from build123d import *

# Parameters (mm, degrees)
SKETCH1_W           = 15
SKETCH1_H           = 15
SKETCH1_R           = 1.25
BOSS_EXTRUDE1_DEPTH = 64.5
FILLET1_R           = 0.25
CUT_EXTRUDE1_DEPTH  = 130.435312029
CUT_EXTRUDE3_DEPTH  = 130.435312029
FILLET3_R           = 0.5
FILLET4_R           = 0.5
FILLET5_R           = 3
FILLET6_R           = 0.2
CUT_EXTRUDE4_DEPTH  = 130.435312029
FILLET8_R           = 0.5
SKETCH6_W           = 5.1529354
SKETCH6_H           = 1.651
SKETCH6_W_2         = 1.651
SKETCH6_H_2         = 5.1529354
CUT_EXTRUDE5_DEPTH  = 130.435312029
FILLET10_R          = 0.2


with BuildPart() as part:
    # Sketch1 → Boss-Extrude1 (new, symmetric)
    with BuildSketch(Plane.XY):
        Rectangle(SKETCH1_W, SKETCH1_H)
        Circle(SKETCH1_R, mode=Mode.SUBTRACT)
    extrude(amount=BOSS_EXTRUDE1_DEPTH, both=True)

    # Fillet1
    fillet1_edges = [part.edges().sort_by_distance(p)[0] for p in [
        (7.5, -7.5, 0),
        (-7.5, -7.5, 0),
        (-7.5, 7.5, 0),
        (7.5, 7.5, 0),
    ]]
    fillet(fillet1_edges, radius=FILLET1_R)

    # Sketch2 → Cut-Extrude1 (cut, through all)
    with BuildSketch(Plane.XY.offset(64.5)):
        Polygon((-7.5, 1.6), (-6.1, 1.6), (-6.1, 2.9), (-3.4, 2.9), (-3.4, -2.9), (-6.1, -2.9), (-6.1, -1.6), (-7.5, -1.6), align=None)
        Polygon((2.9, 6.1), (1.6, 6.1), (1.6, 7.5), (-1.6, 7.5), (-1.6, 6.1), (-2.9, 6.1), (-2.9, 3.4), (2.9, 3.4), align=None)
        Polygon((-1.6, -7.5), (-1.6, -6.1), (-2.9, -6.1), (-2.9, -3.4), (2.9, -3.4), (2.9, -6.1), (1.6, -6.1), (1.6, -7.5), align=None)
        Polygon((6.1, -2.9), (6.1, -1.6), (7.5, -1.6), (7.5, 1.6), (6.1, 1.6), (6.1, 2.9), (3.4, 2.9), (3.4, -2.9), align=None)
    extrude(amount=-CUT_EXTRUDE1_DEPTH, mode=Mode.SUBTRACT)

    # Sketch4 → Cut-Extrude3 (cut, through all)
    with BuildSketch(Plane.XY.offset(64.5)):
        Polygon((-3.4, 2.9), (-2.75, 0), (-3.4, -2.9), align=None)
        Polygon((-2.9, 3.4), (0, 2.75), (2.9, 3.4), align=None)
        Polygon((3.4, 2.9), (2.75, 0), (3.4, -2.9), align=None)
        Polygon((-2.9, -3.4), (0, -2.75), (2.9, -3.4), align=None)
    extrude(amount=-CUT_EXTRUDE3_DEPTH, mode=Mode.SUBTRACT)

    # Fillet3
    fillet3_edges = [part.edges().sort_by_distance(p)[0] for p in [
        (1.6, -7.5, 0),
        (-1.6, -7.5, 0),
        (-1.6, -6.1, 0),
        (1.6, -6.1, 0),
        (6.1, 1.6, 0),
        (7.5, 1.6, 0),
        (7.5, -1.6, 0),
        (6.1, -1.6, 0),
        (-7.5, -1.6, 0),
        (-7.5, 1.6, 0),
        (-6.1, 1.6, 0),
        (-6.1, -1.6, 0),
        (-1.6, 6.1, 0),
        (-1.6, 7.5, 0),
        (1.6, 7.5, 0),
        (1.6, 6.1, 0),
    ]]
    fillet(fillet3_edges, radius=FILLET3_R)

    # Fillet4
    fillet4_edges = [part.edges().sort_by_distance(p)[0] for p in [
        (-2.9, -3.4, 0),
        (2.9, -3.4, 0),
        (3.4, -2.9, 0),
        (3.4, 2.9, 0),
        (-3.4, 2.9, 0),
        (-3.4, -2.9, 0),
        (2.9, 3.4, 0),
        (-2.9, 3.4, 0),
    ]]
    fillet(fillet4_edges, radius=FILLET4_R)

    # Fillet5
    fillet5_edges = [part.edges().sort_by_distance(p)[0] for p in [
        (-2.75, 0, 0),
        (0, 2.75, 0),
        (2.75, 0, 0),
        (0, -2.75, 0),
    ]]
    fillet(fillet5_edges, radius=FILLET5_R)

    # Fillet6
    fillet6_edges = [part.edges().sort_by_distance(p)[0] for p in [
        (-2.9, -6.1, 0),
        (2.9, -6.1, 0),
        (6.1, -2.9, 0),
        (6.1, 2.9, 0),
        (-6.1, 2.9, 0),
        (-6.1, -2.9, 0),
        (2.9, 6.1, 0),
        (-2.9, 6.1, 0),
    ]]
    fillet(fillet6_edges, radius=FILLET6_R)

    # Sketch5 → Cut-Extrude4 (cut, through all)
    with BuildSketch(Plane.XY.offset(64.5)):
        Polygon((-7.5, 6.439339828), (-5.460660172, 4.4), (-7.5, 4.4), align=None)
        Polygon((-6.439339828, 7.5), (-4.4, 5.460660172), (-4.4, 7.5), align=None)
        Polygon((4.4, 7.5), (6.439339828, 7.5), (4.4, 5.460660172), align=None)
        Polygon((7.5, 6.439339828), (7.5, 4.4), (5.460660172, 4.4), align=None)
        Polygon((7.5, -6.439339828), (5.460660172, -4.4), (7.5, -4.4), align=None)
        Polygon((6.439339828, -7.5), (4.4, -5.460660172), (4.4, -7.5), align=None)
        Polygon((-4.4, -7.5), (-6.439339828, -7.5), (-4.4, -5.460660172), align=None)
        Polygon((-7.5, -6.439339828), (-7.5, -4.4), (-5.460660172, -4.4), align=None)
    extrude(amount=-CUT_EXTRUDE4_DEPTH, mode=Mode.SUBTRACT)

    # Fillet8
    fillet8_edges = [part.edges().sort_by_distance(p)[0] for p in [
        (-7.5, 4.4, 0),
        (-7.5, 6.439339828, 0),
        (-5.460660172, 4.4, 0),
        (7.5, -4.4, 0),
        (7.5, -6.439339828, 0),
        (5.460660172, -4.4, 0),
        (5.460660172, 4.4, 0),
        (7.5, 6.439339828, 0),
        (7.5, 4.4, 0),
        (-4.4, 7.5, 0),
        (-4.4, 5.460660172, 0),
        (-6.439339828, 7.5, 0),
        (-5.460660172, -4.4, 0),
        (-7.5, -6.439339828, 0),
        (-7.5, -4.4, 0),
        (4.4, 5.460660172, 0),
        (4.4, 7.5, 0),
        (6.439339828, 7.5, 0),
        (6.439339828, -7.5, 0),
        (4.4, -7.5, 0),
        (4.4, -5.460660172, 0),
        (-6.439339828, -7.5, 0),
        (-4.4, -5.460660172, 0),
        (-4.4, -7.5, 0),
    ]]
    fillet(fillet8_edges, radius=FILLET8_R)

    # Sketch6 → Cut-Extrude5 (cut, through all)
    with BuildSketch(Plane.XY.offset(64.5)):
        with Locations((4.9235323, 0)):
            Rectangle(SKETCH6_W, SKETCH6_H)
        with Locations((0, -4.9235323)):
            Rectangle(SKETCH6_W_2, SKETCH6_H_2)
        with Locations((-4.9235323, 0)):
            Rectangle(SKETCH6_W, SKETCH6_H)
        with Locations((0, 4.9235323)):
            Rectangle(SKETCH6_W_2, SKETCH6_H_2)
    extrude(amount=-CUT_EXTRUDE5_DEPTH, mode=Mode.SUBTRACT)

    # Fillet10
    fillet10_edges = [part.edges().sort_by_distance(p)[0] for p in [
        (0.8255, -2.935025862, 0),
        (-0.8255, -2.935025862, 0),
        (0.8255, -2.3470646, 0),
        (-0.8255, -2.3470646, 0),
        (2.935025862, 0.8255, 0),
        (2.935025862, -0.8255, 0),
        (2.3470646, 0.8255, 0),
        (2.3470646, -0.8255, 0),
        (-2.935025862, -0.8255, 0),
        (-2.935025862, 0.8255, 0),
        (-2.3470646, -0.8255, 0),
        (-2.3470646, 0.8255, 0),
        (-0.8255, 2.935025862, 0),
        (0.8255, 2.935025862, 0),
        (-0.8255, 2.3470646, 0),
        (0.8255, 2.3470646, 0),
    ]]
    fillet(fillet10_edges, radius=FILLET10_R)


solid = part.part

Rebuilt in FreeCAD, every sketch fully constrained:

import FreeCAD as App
import Part
import Sketcher
from FreeCAD import Vector


def edges_at(feature, points):
    """Names of the edges that pass closest to the given points."""
    edges = feature.Shape.Edges
    near = lambda p: min(range(len(edges)), key=lambda i: edges[i].distToShape(Part.Vertex(*p))[0])
    return sorted({f"Edge{near(p) + 1}" for p in points})

doc = App.newDocument("Part")
params = doc.addObject("Spreadsheet::Sheet", "Params")
for row, (alias, value) in enumerate([
    ("sketch1_diameter", "2.5 mm"),
    ("sketch1_width", "15 mm"),
    ("pad1_length", "129 mm"),
    ("fillet_radius", "0.25 mm"),
    ("sketch2_width", "1.4 mm"),
    ("sketch2_width2", "2.7 mm"),
    ("sketch2_width3", "1.3 mm"),
    ("sketch2_width4", "3.2 mm"),
    ("sketch3_width", "5.8 mm"),
    ("fillet2_radius", "0.5 mm"),
    ("fillet3_radius", "0.5 mm"),
    ("fillet4_radius", "3 mm"),
    ("fillet5_radius", "0.2 mm"),
    ("fillet6_radius", "0.5 mm"),
    ("fillet7_radius", "0.2 mm"),
], start=1):
    params.set(f"A{row}", alias)
    params.set(f"B{row}", "=" + value)
    params.setAlias(f"B{row}", alias)

body = doc.addObject("PartDesign::Body", "Body")

# Sketch on XY plane
sketch1 = body.newObject("Sketcher::SketchObject", "Sketch")
sketch1.AttachmentSupport = (doc.getObject("XY_Plane"), [""])
sketch1.MapMode = "FlatFace"
sketch1.addGeometry(Part.LineSegment(Vector(-7.5, 7.5, 0), Vector(-7.5, -7.5, 0)), False)
sketch1.addGeometry(Part.LineSegment(Vector(-7.5, -7.5, 0), Vector(7.5, -7.5, 0)), False)
sketch1.addGeometry(Part.LineSegment(Vector(7.5, -7.5, 0), Vector(7.5, 7.5, 0)), False)
sketch1.addGeometry(Part.LineSegment(Vector(7.5, 7.5, 0), Vector(-7.5, 7.5, 0)), False)
sketch1.addGeometry(Part.Circle(Vector(0, 0, 0), Vector(0, 0, 1), 1.2), False)
sketch1.addConstraint(Sketcher.Constraint("Coincident", 0, 2, 1, 1))
sketch1.addConstraint(Sketcher.Constraint("Coincident", 1, 2, 2, 1))
sketch1.addConstraint(Sketcher.Constraint("Coincident", 2, 2, 3, 1))
sketch1.addConstraint(Sketcher.Constraint("Coincident", 3, 2, 0, 1))
sketch1.addConstraint(Sketcher.Constraint("Vertical", 0))
sketch1.addConstraint(Sketcher.Constraint("Horizontal", 1))
sketch1.addConstraint(Sketcher.Constraint("Vertical", 2))
sketch1.addConstraint(Sketcher.Constraint("Horizontal", 3))
sketch1.addConstraint(Sketcher.Constraint("Coincident", 4, 3, -1, 1))
sketch1.addConstraint(Sketcher.Constraint("Symmetric", 0, 2, 2, 2, -1, 1))
sketch1.addConstraint(Sketcher.Constraint("Equal", 3, 0))
sketch1.addConstraint(Sketcher.Constraint("Diameter", 4, 2.5))
sketch1.addConstraint(Sketcher.Constraint("DistanceX", 1, 1, 1, 2, 15.0))
sketch1.setExpression("Constraints[11]", "Params.sketch1_diameter")
sketch1.setExpression("Constraints[12]", "Params.sketch1_width")
pad1 = body.newObject("PartDesign::Pad", "Pad")
pad1.Profile = sketch1
pad1.setExpression("Length", "Params.pad1_length")
pad1.Midplane = True
doc.recompute()

fillet = body.newObject("PartDesign::Fillet", "Fillet")
fillet.Base = (pad1, edges_at(pad1, [
    (7.5, -7.5, 0),
    (-7.5, -7.5, 0),
    (-7.5, 7.5, 0),
    (7.5, 7.5, 0),
]))
fillet.setExpression("Radius", "Params.fillet_radius")

# Sketch on XY plane
sketch2 = body.newObject("Sketcher::SketchObject", "Sketch001")
sketch2.AttachmentSupport = (doc.getObject("XY_Plane"), [""])
sketch2.MapMode = "FlatFace"
sketch2.AttachmentOffset = App.Placement(Vector(0, 0, 64.5), App.Rotation())
sketch2.addGeometry(Part.LineSegment(Vector(-6.1, 1.6, 0), Vector(-7.5, 1.6, 0)), False)
sketch2.addGeometry(Part.LineSegment(Vector(-7.5, 1.6, 0), Vector(-7.5, -1.6, 0)), False)
sketch2.addGeometry(Part.LineSegment(Vector(-7.5, -1.6, 0), Vector(-6.1, -1.6, 0)), False)
sketch2.addGeometry(Part.LineSegment(Vector(-6.1, -1.6, 0), Vector(-6.1, -2.9, 0)), False)
sketch2.addGeometry(Part.LineSegment(Vector(-6.1, -2.9, 0), Vector(-3.4, -2.9, 0)), False)
sketch2.addGeometry(Part.LineSegment(Vector(-3.4, -2.9, 0), Vector(-3.4, 2.9, 0)), False)
sketch2.addGeometry(Part.LineSegment(Vector(-3.4, 2.9, 0), Vector(-6.1, 2.9, 0)), False)
sketch2.addGeometry(Part.LineSegment(Vector(-6.1, 2.9, 0), Vector(-6.1, 1.6, 0)), False)
sketch2.addGeometry(Part.LineSegment(Vector(2.9, 6.1, 0), Vector(1.6, 6.1, 0)), False)
sketch2.addGeometry(Part.LineSegment(Vector(1.6, 6.1, 0), Vector(1.6, 7.5, 0)), False)
sketch2.addGeometry(Part.LineSegment(Vector(1.6, 7.5, 0), Vector(-1.6, 7.5, 0)), False)
sketch2.addGeometry(Part.LineSegment(Vector(-1.6, 7.5, 0), Vector(-1.6, 6.1, 0)), False)
sketch2.addGeometry(Part.LineSegment(Vector(-1.6, 6.1, 0), Vector(-2.9, 6.1, 0)), False)
sketch2.addGeometry(Part.LineSegment(Vector(-2.9, 6.1, 0), Vector(-2.9, 3.4, 0)), False)
sketch2.addGeometry(Part.LineSegment(Vector(-2.9, 3.4, 0), Vector(2.9, 3.4, 0)), False)
sketch2.addGeometry(Part.LineSegment(Vector(2.9, 3.4, 0), Vector(2.9, 6.1, 0)), False)
sketch2.addGeometry(Part.LineSegment(Vector(-1.6, -6.1, 0), Vector(-1.6, -7.5, 0)), False)
sketch2.addGeometry(Part.LineSegment(Vector(-1.6, -7.5, 0), Vector(1.6, -7.5, 0)), False)
sketch2.addGeometry(Part.LineSegment(Vector(1.6, -7.5, 0), Vector(1.6, -6.1, 0)), False)
sketch2.addGeometry(Part.LineSegment(Vector(1.6, -6.1, 0), Vector(2.9, -6.1, 0)), False)
sketch2.addGeometry(Part.LineSegment(Vector(2.9, -6.1, 0), Vector(2.9, -3.4, 0)), False)
sketch2.addGeometry(Part.LineSegment(Vector(2.9, -3.4, 0), Vector(-2.9, -3.4, 0)), False)
sketch2.addGeometry(Part.LineSegment(Vector(-2.9, -3.4, 0), Vector(-2.9, -6.1, 0)), False)
sketch2.addGeometry(Part.LineSegment(Vector(-2.9, -6.1, 0), Vector(-1.6, -6.1, 0)), False)
sketch2.addGeometry(Part.LineSegment(Vector(6.1, -2.9, 0), Vector(6.1, -1.6, 0)), False)
sketch2.addGeometry(Part.LineSegment(Vector(6.1, -1.6, 0), Vector(7.5, -1.6, 0)), False)
sketch2.addGeometry(Part.LineSegment(Vector(7.5, -1.6, 0), Vector(7.5, 1.6, 0)), False)
sketch2.addGeometry(Part.LineSegment(Vector(7.5, 1.6, 0), Vector(6.1, 1.6, 0)), False)
sketch2.addGeometry(Part.LineSegment(Vector(6.1, 1.6, 0), Vector(6.1, 2.9, 0)), False)
sketch2.addGeometry(Part.LineSegment(Vector(6.1, 2.9, 0), Vector(3.4, 2.9, 0)), False)
sketch2.addGeometry(Part.LineSegment(Vector(3.4, 2.9, 0), Vector(3.4, -2.9, 0)), False)
sketch2.addGeometry(Part.LineSegment(Vector(3.4, -2.9, 0), Vector(6.1, -2.9, 0)), False)
sketch2.addConstraint(Sketcher.Constraint("Coincident", 0, 2, 1, 1))
sketch2.addConstraint(Sketcher.Constraint("Coincident", 1, 2, 2, 1))
sketch2.addConstraint(Sketcher.Constraint("Coincident", 2, 2, 3, 1))
sketch2.addConstraint(Sketcher.Constraint("Coincident", 3, 2, 4, 1))
sketch2.addConstraint(Sketcher.Constraint("Coincident", 4, 2, 5, 1))
sketch2.addConstraint(Sketcher.Constraint("Coincident", 5, 2, 6, 1))
sketch2.addConstraint(Sketcher.Constraint("Coincident", 6, 2, 7, 1))
sketch2.addConstraint(Sketcher.Constraint("Coincident", 7, 2, 0, 1))
sketch2.addConstraint(Sketcher.Constraint("Coincident", 8, 2, 9, 1))
sketch2.addConstraint(Sketcher.Constraint("Coincident", 9, 2, 10, 1))
sketch2.addConstraint(Sketcher.Constraint("Coincident", 10, 2, 11, 1))
sketch2.addConstraint(Sketcher.Constraint("Coincident", 11, 2, 12, 1))
sketch2.addConstraint(Sketcher.Constraint("Coincident", 12, 2, 13, 1))
sketch2.addConstraint(Sketcher.Constraint("Coincident", 13, 2, 14, 1))
sketch2.addConstraint(Sketcher.Constraint("Coincident", 14, 2, 15, 1))
sketch2.addConstraint(Sketcher.Constraint("Coincident", 15, 2, 8, 1))
sketch2.addConstraint(Sketcher.Constraint("Coincident", 16, 2, 17, 1))
sketch2.addConstraint(Sketcher.Constraint("Coincident", 17, 2, 18, 1))
sketch2.addConstraint(Sketcher.Constraint("Coincident", 18, 2, 19, 1))
sketch2.addConstraint(Sketcher.Constraint("Coincident", 19, 2, 20, 1))
sketch2.addConstraint(Sketcher.Constraint("Coincident", 20, 2, 21, 1))
sketch2.addConstraint(Sketcher.Constraint("Coincident", 21, 2, 22, 1))
sketch2.addConstraint(Sketcher.Constraint("Coincident", 22, 2, 23, 1))
sketch2.addConstraint(Sketcher.Constraint("Coincident", 23, 2, 16, 1))
sketch2.addConstraint(Sketcher.Constraint("Coincident", 24, 2, 25, 1))
sketch2.addConstraint(Sketcher.Constraint("Coincident", 25, 2, 26, 1))
sketch2.addConstraint(Sketcher.Constraint("Coincident", 26, 2, 27, 1))
sketch2.addConstraint(Sketcher.Constraint("Coincident", 27, 2, 28, 1))
sketch2.addConstraint(Sketcher.Constraint("Coincident", 28, 2, 29, 1))
sketch2.addConstraint(Sketcher.Constraint("Coincident", 29, 2, 30, 1))
sketch2.addConstraint(Sketcher.Constraint("Coincident", 30, 2, 31, 1))
sketch2.addConstraint(Sketcher.Constraint("Coincident", 31, 2, 24, 1))
sketch2.addConstraint(Sketcher.Constraint("Horizontal", 0))
sketch2.addConstraint(Sketcher.Constraint("Vertical", 1))
sketch2.addConstraint(Sketcher.Constraint("Horizontal", 2))
sketch2.addConstraint(Sketcher.Constraint("Vertical", 3))
sketch2.addConstraint(Sketcher.Constraint("Horizontal", 4))
sketch2.addConstraint(Sketcher.Constraint("Vertical", 5))
sketch2.addConstraint(Sketcher.Constraint("Horizontal", 6))
sketch2.addConstraint(Sketcher.Constraint("Vertical", 7))
sketch2.addConstraint(Sketcher.Constraint("Horizontal", 8))
sketch2.addConstraint(Sketcher.Constraint("Vertical", 9))
sketch2.addConstraint(Sketcher.Constraint("Horizontal", 10))
sketch2.addConstraint(Sketcher.Constraint("Vertical", 11))
sketch2.addConstraint(Sketcher.Constraint("Horizontal", 12))
sketch2.addConstraint(Sketcher.Constraint("Vertical", 13))
sketch2.addConstraint(Sketcher.Constraint("Horizontal", 14))
sketch2.addConstraint(Sketcher.Constraint("Vertical", 15))
sketch2.addConstraint(Sketcher.Constraint("Vertical", 16))
sketch2.addConstraint(Sketcher.Constraint("Horizontal", 17))
sketch2.addConstraint(Sketcher.Constraint("Vertical", 18))
sketch2.addConstraint(Sketcher.Constraint("Horizontal", 19))
sketch2.addConstraint(Sketcher.Constraint("Vertical", 20))
sketch2.addConstraint(Sketcher.Constraint("Horizontal", 21))
sketch2.addConstraint(Sketcher.Constraint("Vertical", 22))
sketch2.addConstraint(Sketcher.Constraint("Horizontal", 23))
sketch2.addConstraint(Sketcher.Constraint("Vertical", 24))
sketch2.addConstraint(Sketcher.Constraint("Horizontal", 25))
sketch2.addConstraint(Sketcher.Constraint("Vertical", 26))
sketch2.addConstraint(Sketcher.Constraint("Horizontal", 27))
sketch2.addConstraint(Sketcher.Constraint("Vertical", 28))
sketch2.addConstraint(Sketcher.Constraint("Horizontal", 29))
sketch2.addConstraint(Sketcher.Constraint("Vertical", 30))
sketch2.addConstraint(Sketcher.Constraint("Horizontal", 31))
sketch2.addConstraint(Sketcher.Constraint("Symmetric", 9, 2, 16, 2, -1, 1))
sketch2.addConstraint(Sketcher.Constraint("Symmetric", 11, 2, 18, 2, -1, 1))
sketch2.addConstraint(Sketcher.Constraint("Symmetric", 13, 2, 20, 2, -1, 1))
sketch2.addConstraint(Sketcher.Constraint("Symmetric", 15, 2, 22, 2, -1, 1))
sketch2.addConstraint(Sketcher.Constraint("Symmetric", 7, 2, 24, 2, -1, 1))
sketch2.addConstraint(Sketcher.Constraint("Symmetric", 1, 2, 26, 2, -1, 1))
sketch2.addConstraint(Sketcher.Constraint("Symmetric", 3, 2, 28, 2, -1, 1))
sketch2.addConstraint(Sketcher.Constraint("Symmetric", 5, 2, 30, 2, -1, 1))
sketch2.addConstraint(Sketcher.Constraint("Symmetric", 8, 2, 11, 2, -2))
sketch2.addConstraint(Sketcher.Constraint("Symmetric", 2, 2, 24, 2, -2))
sketch2.addConstraint(Sketcher.Constraint("Horizontal", 6, 2, 28, 2))
sketch2.addConstraint(Sketcher.Constraint("Vertical", 15, 2, 19, 2))
sketch2.addConstraint(Sketcher.Constraint("Equal", 17, 1))
sketch2.addConstraint(Sketcher.Constraint("Equal", 23, 3))
sketch2.addConstraint(Sketcher.Constraint("Equal", 27, 9))
sketch2.addConstraint(Sketcher.Constraint("Equal", 31, 13))
sketch2.addConstraint(Sketcher.Constraint("DistanceX", 0, 2, 0, 1, 1.4))
sketch2.addConstraint(Sketcher.Constraint("DistanceX", 4, 1, 4, 2, 2.7))
sketch2.addConstraint(Sketcher.Constraint("DistanceX", 8, 2, 8, 1, 1.3))
sketch2.addConstraint(Sketcher.Constraint("DistanceX", 10, 2, 10, 1, 3.2))
sketch2.addConstraint(Sketcher.Constraint("DistanceX", 5, 2, 8, 2, 5.0))
sketch2.addConstraint(Sketcher.Constraint("DistanceY", 4, 2, 8, 2, 9.0))
sketch2.setExpression("Constraints[80]", "Params.sketch2_width")
sketch2.setExpression("Constraints[81]", "Params.sketch2_width2")
sketch2.setExpression("Constraints[82]", "Params.sketch2_width3")
sketch2.setExpression("Constraints[83]", "Params.sketch2_width4")
pocket1 = body.newObject("PartDesign::Pocket", "Pocket")
pocket1.Profile = sketch2
pocket1.Type = "ThroughAll"

# Sketch on XY plane
sketch3 = body.newObject("Sketcher::SketchObject", "Sketch002")
sketch3.AttachmentSupport = (doc.getObject("XY_Plane"), [""])
sketch3.MapMode = "FlatFace"
sketch3.AttachmentOffset = App.Placement(Vector(0, 0, 64.5), App.Rotation())
sketch3.addGeometry(Part.LineSegment(Vector(-2.8, 0, 0), Vector(-3.4, 2.9, 0)), False)
sketch3.addGeometry(Part.LineSegment(Vector(-3.4, 2.9, 0), Vector(-3.4, -2.9, 0)), False)
sketch3.addGeometry(Part.LineSegment(Vector(-3.4, -2.9, 0), Vector(-2.8, 0, 0)), False)
sketch3.addGeometry(Part.LineSegment(Vector(-2.9, 3.4, 0), Vector(0, 2.8, 0)), False)
sketch3.addGeometry(Part.LineSegment(Vector(0, 2.8, 0), Vector(2.9, 3.4, 0)), False)
sketch3.addGeometry(Part.LineSegment(Vector(2.9, 3.4, 0), Vector(-2.9, 3.4, 0)), False)
sketch3.addGeometry(Part.LineSegment(Vector(3.4, 2.9, 0), Vector(2.8, 0, 0)), False)
sketch3.addGeometry(Part.LineSegment(Vector(2.8, 0, 0), Vector(3.4, -2.9, 0)), False)
sketch3.addGeometry(Part.LineSegment(Vector(3.4, -2.9, 0), Vector(3.4, 2.9, 0)), False)
sketch3.addGeometry(Part.LineSegment(Vector(0, -2.8, 0), Vector(-2.9, -3.4, 0)), False)
sketch3.addGeometry(Part.LineSegment(Vector(-2.9, -3.4, 0), Vector(2.9, -3.4, 0)), False)
sketch3.addGeometry(Part.LineSegment(Vector(2.9, -3.4, 0), Vector(0, -2.8, 0)), False)
sketch3.addConstraint(Sketcher.Constraint("Coincident", 0, 2, 1, 1))
sketch3.addConstraint(Sketcher.Constraint("Coincident", 1, 2, 2, 1))
sketch3.addConstraint(Sketcher.Constraint("Coincident", 2, 2, 0, 1))
sketch3.addConstraint(Sketcher.Constraint("Coincident", 3, 2, 4, 1))
sketch3.addConstraint(Sketcher.Constraint("Coincident", 4, 2, 5, 1))
sketch3.addConstraint(Sketcher.Constraint("Coincident", 5, 2, 3, 1))
sketch3.addConstraint(Sketcher.Constraint("Coincident", 6, 2, 7, 1))
sketch3.addConstraint(Sketcher.Constraint("Coincident", 7, 2, 8, 1))
sketch3.addConstraint(Sketcher.Constraint("Coincident", 8, 2, 6, 1))
sketch3.addConstraint(Sketcher.Constraint("Coincident", 9, 2, 10, 1))
sketch3.addConstraint(Sketcher.Constraint("Coincident", 10, 2, 11, 1))
sketch3.addConstraint(Sketcher.Constraint("Coincident", 11, 2, 9, 1))
sketch3.addConstraint(Sketcher.Constraint("Vertical", 1))
sketch3.addConstraint(Sketcher.Constraint("Horizontal", 5))
sketch3.addConstraint(Sketcher.Constraint("Vertical", 8))
sketch3.addConstraint(Sketcher.Constraint("Horizontal", 10))
sketch3.addConstraint(Sketcher.Constraint("Symmetric", 2, 2, 6, 2, -1, 1))
sketch3.addConstraint(Sketcher.Constraint("Symmetric", 0, 2, 7, 2, -1, 1))
sketch3.addConstraint(Sketcher.Constraint("Symmetric", 4, 2, 9, 2, -1, 1))
sketch3.addConstraint(Sketcher.Constraint("Symmetric", 3, 2, 11, 2, -1, 1))
sketch3.addConstraint(Sketcher.Constraint("PointOnObject", 2, 2, -1))
sketch3.addConstraint(Sketcher.Constraint("PointOnObject", 3, 2, -2))
sketch3.addConstraint(Sketcher.Constraint("Perpendicular", 2, 3))
sketch3.addConstraint(Sketcher.Constraint("Perpendicular", 0, 4))
sketch3.addConstraint(Sketcher.Constraint("Perpendicular", 3, 6))
sketch3.addConstraint(Sketcher.Constraint("Perpendicular", 6, 11))
sketch3.addConstraint(Sketcher.Constraint("Horizontal", 1, 2, 7, 2))
sketch3.addConstraint(Sketcher.Constraint("Equal", 10, 1))
sketch3.addConstraint(Sketcher.Constraint("DistanceX", 5, 2, 5, 1, 5.8))
sketch3.addConstraint(Sketcher.Constraint("DistanceX", 0, 2, -1, 1, 3.4))
sketch3.addConstraint(Sketcher.Constraint("DistanceY", -1, 1, 4, 2, 3.4))
sketch3.addConstraint(Sketcher.Constraint("DistanceX", 2, 2, 6, 2, 5.5))
sketch3.setExpression("Constraints[28]", "Params.sketch3_width")
pocket2 = body.newObject("PartDesign::Pocket", "Pocket001")
pocket2.Profile = sketch3
pocket2.Type = "ThroughAll"
doc.recompute()

fillet2 = body.newObject("PartDesign::Fillet", "Fillet001")
fillet2.Base = (pocket2, edges_at(pocket2, [
    (1.6, -7.5, 0),
    (-1.6, -7.5, 0),
    (-1.6, -6.1, 0),
    (1.6, -6.1, 0),
    (6.1, 1.6, 0),
    (7.5, 1.6, 0),
    (7.5, -1.6, 0),
    (6.1, -1.6, 0),
    (-7.5, -1.6, 0),
    (-7.5, 1.6, 0),
    (-6.1, 1.6, 0),
    (-6.1, -1.6, 0),
    (-1.6, 6.1, 0),
    (-1.6, 7.5, 0),
    (1.6, 7.5, 0),
    (1.6, 6.1, 0),
]))
fillet2.setExpression("Radius", "Params.fillet2_radius")
doc.recompute()

fillet3 = body.newObject("PartDesign::Fillet", "Fillet002")
fillet3.Base = (fillet2, edges_at(fillet2, [
    (-2.9, -3.4, 0),
    (2.9, -3.4, 0),
    (3.4, -2.9, 0),
    (3.4, 2.9, 0),
    (-3.4, 2.9, 0),
    (-3.4, -2.9, 0),
    (2.9, 3.4, 0),
    (-2.9, 3.4, 0),
]))
fillet3.setExpression("Radius", "Params.fillet3_radius")
doc.recompute()

fillet4 = body.newObject("PartDesign::Fillet", "Fillet003")
fillet4.Base = (fillet3, edges_at(fillet3, [
    (-2.75, 0, 0),
    (0, 2.75, 0),
    (2.75, 0, 0),
    (0, -2.75, 0),
]))
fillet4.setExpression("Radius", "Params.fillet4_radius")
doc.recompute()

fillet5 = body.newObject("PartDesign::Fillet", "Fillet004")
fillet5.Base = (fillet4, edges_at(fillet4, [
    (-2.9, -6.1, 0),
    (2.9, -6.1, 0),
    (6.1, -2.9, 0),
    (6.1, 2.9, 0),
    (-6.1, 2.9, 0),
    (-6.1, -2.9, 0),
    (2.9, 6.1, 0),
    (-2.9, 6.1, 0),
]))
fillet5.setExpression("Radius", "Params.fillet5_radius")

# Sketch on XY plane
sketch4 = body.newObject("Sketcher::SketchObject", "Sketch003")
sketch4.AttachmentSupport = (doc.getObject("XY_Plane"), [""])
sketch4.MapMode = "FlatFace"
sketch4.AttachmentOffset = App.Placement(Vector(0, 0, 64.5), App.Rotation())
sketch4.addGeometry(Part.LineSegment(Vector(-5.5, 4.4, 0), Vector(-7.5, 6.4, 0)), False)
sketch4.addGeometry(Part.LineSegment(Vector(-7.5, 6.4, 0), Vector(-7.5, 4.4, 0)), False)
sketch4.addGeometry(Part.LineSegment(Vector(-7.5, 4.4, 0), Vector(-5.5, 4.4, 0)), False)
sketch4.addGeometry(Part.LineSegment(Vector(-6.4, 7.5, 0), Vector(-4.4, 5.5, 0)), False)
sketch4.addGeometry(Part.LineSegment(Vector(-4.4, 5.5, 0), Vector(-4.4, 7.5, 0)), False)
sketch4.addGeometry(Part.LineSegment(Vector(-4.4, 7.5, 0), Vector(-6.4, 7.5, 0)), False)
sketch4.addGeometry(Part.LineSegment(Vector(6.4, 7.5, 0), Vector(4.4, 7.5, 0)), False)
sketch4.addGeometry(Part.LineSegment(Vector(4.4, 7.5, 0), Vector(4.4, 5.5, 0)), False)
sketch4.addGeometry(Part.LineSegment(Vector(4.4, 5.5, 0), Vector(6.4, 7.5, 0)), False)
sketch4.addGeometry(Part.LineSegment(Vector(7.5, 4.4, 0), Vector(7.5, 6.4, 0)), False)
sketch4.addGeometry(Part.LineSegment(Vector(7.5, 6.4, 0), Vector(5.5, 4.4, 0)), False)
sketch4.addGeometry(Part.LineSegment(Vector(5.5, 4.4, 0), Vector(7.5, 4.4, 0)), False)
sketch4.addGeometry(Part.LineSegment(Vector(5.5, -4.4, 0), Vector(7.5, -6.4, 0)), False)
sketch4.addGeometry(Part.LineSegment(Vector(7.5, -6.4, 0), Vector(7.5, -4.4, 0)), False)
sketch4.addGeometry(Part.LineSegment(Vector(7.5, -4.4, 0), Vector(5.5, -4.4, 0)), False)
sketch4.addGeometry(Part.LineSegment(Vector(6.4, -7.5, 0), Vector(4.4, -5.5, 0)), False)
sketch4.addGeometry(Part.LineSegment(Vector(4.4, -5.5, 0), Vector(4.4, -7.5, 0)), False)
sketch4.addGeometry(Part.LineSegment(Vector(4.4, -7.5, 0), Vector(6.4, -7.5, 0)), False)
sketch4.addGeometry(Part.LineSegment(Vector(-6.4, -7.5, 0), Vector(-4.4, -7.5, 0)), False)
sketch4.addGeometry(Part.LineSegment(Vector(-4.4, -7.5, 0), Vector(-4.4, -5.5, 0)), False)
sketch4.addGeometry(Part.LineSegment(Vector(-4.4, -5.5, 0), Vector(-6.4, -7.5, 0)), False)
sketch4.addGeometry(Part.LineSegment(Vector(-7.5, -4.4, 0), Vector(-7.5, -6.4, 0)), False)
sketch4.addGeometry(Part.LineSegment(Vector(-7.5, -6.4, 0), Vector(-5.5, -4.4, 0)), False)
sketch4.addGeometry(Part.LineSegment(Vector(-5.5, -4.4, 0), Vector(-7.5, -4.4, 0)), False)
sketch4.addConstraint(Sketcher.Constraint("Coincident", 0, 2, 1, 1))
sketch4.addConstraint(Sketcher.Constraint("Coincident", 1, 2, 2, 1))
sketch4.addConstraint(Sketcher.Constraint("Coincident", 2, 2, 0, 1))
sketch4.addConstraint(Sketcher.Constraint("Coincident", 3, 2, 4, 1))
sketch4.addConstraint(Sketcher.Constraint("Coincident", 4, 2, 5, 1))
sketch4.addConstraint(Sketcher.Constraint("Coincident", 5, 2, 3, 1))
sketch4.addConstraint(Sketcher.Constraint("Coincident", 6, 2, 7, 1))
sketch4.addConstraint(Sketcher.Constraint("Coincident", 7, 2, 8, 1))
sketch4.addConstraint(Sketcher.Constraint("Coincident", 8, 2, 6, 1))
sketch4.addConstraint(Sketcher.Constraint("Coincident", 9, 2, 10, 1))
sketch4.addConstraint(Sketcher.Constraint("Coincident", 10, 2, 11, 1))
sketch4.addConstraint(Sketcher.Constraint("Coincident", 11, 2, 9, 1))
sketch4.addConstraint(Sketcher.Constraint("Coincident", 12, 2, 13, 1))
sketch4.addConstraint(Sketcher.Constraint("Coincident", 13, 2, 14, 1))
sketch4.addConstraint(Sketcher.Constraint("Coincident", 14, 2, 12, 1))
sketch4.addConstraint(Sketcher.Constraint("Coincident", 15, 2, 16, 1))
sketch4.addConstraint(Sketcher.Constraint("Coincident", 16, 2, 17, 1))
sketch4.addConstraint(Sketcher.Constraint("Coincident", 17, 2, 15, 1))
sketch4.addConstraint(Sketcher.Constraint("Coincident", 18, 2, 19, 1))
sketch4.addConstraint(Sketcher.Constraint("Coincident", 19, 2, 20, 1))
sketch4.addConstraint(Sketcher.Constraint("Coincident", 20, 2, 18, 1))
sketch4.addConstraint(Sketcher.Constraint("Coincident", 21, 2, 22, 1))
sketch4.addConstraint(Sketcher.Constraint("Coincident", 22, 2, 23, 1))
sketch4.addConstraint(Sketcher.Constraint("Coincident", 23, 2, 21, 1))
sketch4.addConstraint(Sketcher.Constraint("Vertical", 1))
sketch4.addConstraint(Sketcher.Constraint("Horizontal", 2))
sketch4.addConstraint(Sketcher.Constraint("Vertical", 4))
sketch4.addConstraint(Sketcher.Constraint("Horizontal", 5))
sketch4.addConstraint(Sketcher.Constraint("Horizontal", 6))
sketch4.addConstraint(Sketcher.Constraint("Vertical", 7))
sketch4.addConstraint(Sketcher.Constraint("Vertical", 9))
sketch4.addConstraint(Sketcher.Constraint("Horizontal", 11))
sketch4.addConstraint(Sketcher.Constraint("Vertical", 13))
sketch4.addConstraint(Sketcher.Constraint("Horizontal", 14))
sketch4.addConstraint(Sketcher.Constraint("Vertical", 16))
sketch4.addConstraint(Sketcher.Constraint("Horizontal", 17))
sketch4.addConstraint(Sketcher.Constraint("Horizontal", 18))
sketch4.addConstraint(Sketcher.Constraint("Vertical", 19))
sketch4.addConstraint(Sketcher.Constraint("Vertical", 21))
sketch4.addConstraint(Sketcher.Constraint("Horizontal", 23))
sketch4.addConstraint(Sketcher.Constraint("Symmetric", 0, 2, 12, 2, -1, 1))
sketch4.addConstraint(Sketcher.Constraint("Symmetric", 2, 2, 14, 2, -1, 1))
sketch4.addConstraint(Sketcher.Constraint("Symmetric", 3, 2, 15, 2, -1, 1))
sketch4.addConstraint(Sketcher.Constraint("Symmetric", 5, 2, 17, 2, -1, 1))
sketch4.addConstraint(Sketcher.Constraint("Symmetric", 6, 2, 18, 2, -1, 1))
sketch4.addConstraint(Sketcher.Constraint("Symmetric", 9, 2, 21, 2, -1, 1))
sketch4.addConstraint(Sketcher.Constraint("Symmetric", 10, 2, 22, 2, -1, 1))
sketch4.addConstraint(Sketcher.Constraint("Symmetric", 4, 2, 6, 2, -2))
sketch4.addConstraint(Sketcher.Constraint("Symmetric", 0, 2, 9, 2, -2))
sketch4.addConstraint(Sketcher.Constraint("Symmetric", 2, 2, 10, 2, -2))
sketch4.addConstraint(Sketcher.Constraint("Parallel", 0, 3))
sketch4.addConstraint(Sketcher.Constraint("Perpendicular", 3, 8))
sketch4.addConstraint(Sketcher.Constraint("Parallel", 8, 10))
sketch4.addConstraint(Sketcher.Constraint("Perpendicular", 15, 20))
sketch4.addConstraint(Sketcher.Constraint("Horizontal", 3, 2, 7, 2))
sketch4.addConstraint(Sketcher.Constraint("Horizontal", 15, 2, 19, 2))
sketch4.addConstraint(Sketcher.Constraint("Equal", 2, 5))
sketch4.addConstraint(Sketcher.Constraint("DistanceX", 0, 2, -1, 1, 7.5))
sketch4.addConstraint(Sketcher.Constraint("DistanceY", -1, 1, 1, 2, 4.4))
sketch4.addConstraint(Sketcher.Constraint("DistanceX", 3, 2, -1, 1, 4.4))
sketch4.addConstraint(Sketcher.Constraint("DistanceY", -1, 1, 4, 2, 7.5))
sketch4.addConstraint(Sketcher.Constraint("DistanceX", 2, 1, 2, 2, 2.03934))
pocket3 = body.newObject("PartDesign::Pocket", "Pocket002")
pocket3.Profile = sketch4
pocket3.Type = "ThroughAll"
doc.recompute()

fillet6 = body.newObject("PartDesign::Fillet", "Fillet005")
fillet6.Base = (pocket3, edges_at(pocket3, [
    (-7.5, 4.4, 0),
    (-7.5, 6.439, 0),
    (-5.461, 4.4, 0),
    (7.5, -4.4, 0),
    (7.5, -6.439, 0),
    (5.461, -4.4, 0),
    (5.461, 4.4, 0),
    (7.5, 6.439, 0),
    (7.5, 4.4, 0),
    (-4.4, 7.5, 0),
    (-4.4, 5.461, 0),
    (-6.439, 7.5, 0),
    (-5.461, -4.4, 0),
    (-7.5, -6.439, 0),
    (-7.5, -4.4, 0),
    (4.4, 5.461, 0),
    (4.4, 7.5, 0),
    (6.439, 7.5, 0),
    (6.439, -7.5, 0),
    (4.4, -7.5, 0),
    (4.4, -5.461, 0),
    (-6.439, -7.5, 0),
    (-4.4, -5.461, 0),
    (-4.4, -7.5, 0),
]))
fillet6.setExpression("Radius", "Params.fillet6_radius")

# Sketch on XY plane
sketch5 = body.newObject("Sketcher::SketchObject", "Sketch004")
sketch5.AttachmentSupport = (doc.getObject("XY_Plane"), [""])
sketch5.MapMode = "FlatFace"
sketch5.AttachmentOffset = App.Placement(Vector(0, 0, 64.5), App.Rotation())
sketch5.addGeometry(Part.LineSegment(Vector(2.3, 0.8, 0), Vector(2.3, -0.8, 0)), False)
sketch5.addGeometry(Part.LineSegment(Vector(2.3, -0.8, 0), Vector(7.5, -0.8, 0)), False)
sketch5.addGeometry(Part.LineSegment(Vector(7.5, -0.8, 0), Vector(7.5, 0.8, 0)), False)
sketch5.addGeometry(Part.LineSegment(Vector(7.5, 0.8, 0), Vector(2.3, 0.8, 0)), False)
sketch5.addGeometry(Part.LineSegment(Vector(-0.8, -2.3, 0), Vector(-0.8, -7.5, 0)), False)
sketch5.addGeometry(Part.LineSegment(Vector(-0.8, -7.5, 0), Vector(0.8, -7.5, 0)), False)
sketch5.addGeometry(Part.LineSegment(Vector(0.8, -7.5, 0), Vector(0.8, -2.3, 0)), False)
sketch5.addGeometry(Part.LineSegment(Vector(0.8, -2.3, 0), Vector(-0.8, -2.3, 0)), False)
sketch5.addGeometry(Part.LineSegment(Vector(-7.5, 0.8, 0), Vector(-7.5, -0.8, 0)), False)
sketch5.addGeometry(Part.LineSegment(Vector(-7.5, -0.8, 0), Vector(-2.3, -0.8, 0)), False)
sketch5.addGeometry(Part.LineSegment(Vector(-2.3, -0.8, 0), Vector(-2.3, 0.8, 0)), False)
sketch5.addGeometry(Part.LineSegment(Vector(-2.3, 0.8, 0), Vector(-7.5, 0.8, 0)), False)
sketch5.addGeometry(Part.LineSegment(Vector(-0.8, 7.5, 0), Vector(-0.8, 2.3, 0)), False)
sketch5.addGeometry(Part.LineSegment(Vector(-0.8, 2.3, 0), Vector(0.8, 2.3, 0)), False)
sketch5.addGeometry(Part.LineSegment(Vector(0.8, 2.3, 0), Vector(0.8, 7.5, 0)), False)
sketch5.addGeometry(Part.LineSegment(Vector(0.8, 7.5, 0), Vector(-0.8, 7.5, 0)), False)
sketch5.addConstraint(Sketcher.Constraint("Coincident", 0, 2, 1, 1))
sketch5.addConstraint(Sketcher.Constraint("Coincident", 1, 2, 2, 1))
sketch5.addConstraint(Sketcher.Constraint("Coincident", 2, 2, 3, 1))
sketch5.addConstraint(Sketcher.Constraint("Coincident", 3, 2, 0, 1))
sketch5.addConstraint(Sketcher.Constraint("Coincident", 4, 2, 5, 1))
sketch5.addConstraint(Sketcher.Constraint("Coincident", 5, 2, 6, 1))
sketch5.addConstraint(Sketcher.Constraint("Coincident", 6, 2, 7, 1))
sketch5.addConstraint(Sketcher.Constraint("Coincident", 7, 2, 4, 1))
sketch5.addConstraint(Sketcher.Constraint("Coincident", 8, 2, 9, 1))
sketch5.addConstraint(Sketcher.Constraint("Coincident", 9, 2, 10, 1))
sketch5.addConstraint(Sketcher.Constraint("Coincident", 10, 2, 11, 1))
sketch5.addConstraint(Sketcher.Constraint("Coincident", 11, 2, 8, 1))
sketch5.addConstraint(Sketcher.Constraint("Coincident", 12, 2, 13, 1))
sketch5.addConstraint(Sketcher.Constraint("Coincident", 13, 2, 14, 1))
sketch5.addConstraint(Sketcher.Constraint("Coincident", 14, 2, 15, 1))
sketch5.addConstraint(Sketcher.Constraint("Coincident", 15, 2, 12, 1))
sketch5.addConstraint(Sketcher.Constraint("Vertical", 0))
sketch5.addConstraint(Sketcher.Constraint("Horizontal", 1))
sketch5.addConstraint(Sketcher.Constraint("Vertical", 2))
sketch5.addConstraint(Sketcher.Constraint("Horizontal", 3))
sketch5.addConstraint(Sketcher.Constraint("Vertical", 4))
sketch5.addConstraint(Sketcher.Constraint("Horizontal", 5))
sketch5.addConstraint(Sketcher.Constraint("Vertical", 6))
sketch5.addConstraint(Sketcher.Constraint("Horizontal", 7))
sketch5.addConstraint(Sketcher.Constraint("Vertical", 8))
sketch5.addConstraint(Sketcher.Constraint("Horizontal", 9))
sketch5.addConstraint(Sketcher.Constraint("Vertical", 10))
sketch5.addConstraint(Sketcher.Constraint("Horizontal", 11))
sketch5.addConstraint(Sketcher.Constraint("Vertical", 12))
sketch5.addConstraint(Sketcher.Constraint("Horizontal", 13))
sketch5.addConstraint(Sketcher.Constraint("Vertical", 14))
sketch5.addConstraint(Sketcher.Constraint("Horizontal", 15))
sketch5.addConstraint(Sketcher.Constraint("Symmetric", 2, 2, 8, 2, -1, 1))
sketch5.addConstraint(Sketcher.Constraint("Symmetric", 0, 2, 10, 2, -1, 1))
sketch5.addConstraint(Sketcher.Constraint("Symmetric", 6, 2, 12, 2, -1, 1))
sketch5.addConstraint(Sketcher.Constraint("Symmetric", 4, 2, 14, 2, -1, 1))
sketch5.addConstraint(Sketcher.Constraint("Horizontal", 1, 2, 8, 2))
sketch5.addConstraint(Sketcher.Constraint("Vertical", 7, 2, 12, 2))
sketch5.addConstraint(Sketcher.Constraint("Equal", 15, 0))
sketch5.addConstraint(Sketcher.Constraint("Equal", 11, 4))
sketch5.addConstraint(Sketcher.Constraint("DistanceX", -1, 1, 1, 2, 7.5))
sketch5.addConstraint(Sketcher.Constraint("DistanceY", 4, 2, -1, 1, 7.5))
sketch5.addConstraint(Sketcher.Constraint("DistanceX", 5, 1, 5, 2, 1.651))
sketch5.addConstraint(Sketcher.Constraint("DistanceX", 1, 1, 1, 2, 5.152935))
pocket4 = body.newObject("PartDesign::Pocket", "Pocket003")
pocket4.Profile = sketch5
pocket4.Type = "ThroughAll"
doc.recompute()

fillet7 = body.newObject("PartDesign::Fillet", "Fillet006")
fillet7.Base = (pocket4, edges_at(pocket4, [
    (0.826, -2.935, 0),
    (-0.826, -2.935, 0),
    (0.826, -2.347, 0),
    (-0.826, -2.347, 0),
    (2.935, 0.826, 0),
    (2.935, -0.826, 0),
    (2.347, 0.826, 0),
    (2.347, -0.826, 0),
    (-2.935, -0.826, 0),
    (-2.935, 0.826, 0),
    (-2.347, -0.826, 0),
    (-2.347, 0.826, 0),
    (-0.826, 2.935, 0),
    (0.826, 2.935, 0),
    (-0.826, 2.347, 0),
    (0.826, 2.347, 0),
]))
fillet7.setExpression("Radius", "Params.fillet7_radius")

doc.recompute()
